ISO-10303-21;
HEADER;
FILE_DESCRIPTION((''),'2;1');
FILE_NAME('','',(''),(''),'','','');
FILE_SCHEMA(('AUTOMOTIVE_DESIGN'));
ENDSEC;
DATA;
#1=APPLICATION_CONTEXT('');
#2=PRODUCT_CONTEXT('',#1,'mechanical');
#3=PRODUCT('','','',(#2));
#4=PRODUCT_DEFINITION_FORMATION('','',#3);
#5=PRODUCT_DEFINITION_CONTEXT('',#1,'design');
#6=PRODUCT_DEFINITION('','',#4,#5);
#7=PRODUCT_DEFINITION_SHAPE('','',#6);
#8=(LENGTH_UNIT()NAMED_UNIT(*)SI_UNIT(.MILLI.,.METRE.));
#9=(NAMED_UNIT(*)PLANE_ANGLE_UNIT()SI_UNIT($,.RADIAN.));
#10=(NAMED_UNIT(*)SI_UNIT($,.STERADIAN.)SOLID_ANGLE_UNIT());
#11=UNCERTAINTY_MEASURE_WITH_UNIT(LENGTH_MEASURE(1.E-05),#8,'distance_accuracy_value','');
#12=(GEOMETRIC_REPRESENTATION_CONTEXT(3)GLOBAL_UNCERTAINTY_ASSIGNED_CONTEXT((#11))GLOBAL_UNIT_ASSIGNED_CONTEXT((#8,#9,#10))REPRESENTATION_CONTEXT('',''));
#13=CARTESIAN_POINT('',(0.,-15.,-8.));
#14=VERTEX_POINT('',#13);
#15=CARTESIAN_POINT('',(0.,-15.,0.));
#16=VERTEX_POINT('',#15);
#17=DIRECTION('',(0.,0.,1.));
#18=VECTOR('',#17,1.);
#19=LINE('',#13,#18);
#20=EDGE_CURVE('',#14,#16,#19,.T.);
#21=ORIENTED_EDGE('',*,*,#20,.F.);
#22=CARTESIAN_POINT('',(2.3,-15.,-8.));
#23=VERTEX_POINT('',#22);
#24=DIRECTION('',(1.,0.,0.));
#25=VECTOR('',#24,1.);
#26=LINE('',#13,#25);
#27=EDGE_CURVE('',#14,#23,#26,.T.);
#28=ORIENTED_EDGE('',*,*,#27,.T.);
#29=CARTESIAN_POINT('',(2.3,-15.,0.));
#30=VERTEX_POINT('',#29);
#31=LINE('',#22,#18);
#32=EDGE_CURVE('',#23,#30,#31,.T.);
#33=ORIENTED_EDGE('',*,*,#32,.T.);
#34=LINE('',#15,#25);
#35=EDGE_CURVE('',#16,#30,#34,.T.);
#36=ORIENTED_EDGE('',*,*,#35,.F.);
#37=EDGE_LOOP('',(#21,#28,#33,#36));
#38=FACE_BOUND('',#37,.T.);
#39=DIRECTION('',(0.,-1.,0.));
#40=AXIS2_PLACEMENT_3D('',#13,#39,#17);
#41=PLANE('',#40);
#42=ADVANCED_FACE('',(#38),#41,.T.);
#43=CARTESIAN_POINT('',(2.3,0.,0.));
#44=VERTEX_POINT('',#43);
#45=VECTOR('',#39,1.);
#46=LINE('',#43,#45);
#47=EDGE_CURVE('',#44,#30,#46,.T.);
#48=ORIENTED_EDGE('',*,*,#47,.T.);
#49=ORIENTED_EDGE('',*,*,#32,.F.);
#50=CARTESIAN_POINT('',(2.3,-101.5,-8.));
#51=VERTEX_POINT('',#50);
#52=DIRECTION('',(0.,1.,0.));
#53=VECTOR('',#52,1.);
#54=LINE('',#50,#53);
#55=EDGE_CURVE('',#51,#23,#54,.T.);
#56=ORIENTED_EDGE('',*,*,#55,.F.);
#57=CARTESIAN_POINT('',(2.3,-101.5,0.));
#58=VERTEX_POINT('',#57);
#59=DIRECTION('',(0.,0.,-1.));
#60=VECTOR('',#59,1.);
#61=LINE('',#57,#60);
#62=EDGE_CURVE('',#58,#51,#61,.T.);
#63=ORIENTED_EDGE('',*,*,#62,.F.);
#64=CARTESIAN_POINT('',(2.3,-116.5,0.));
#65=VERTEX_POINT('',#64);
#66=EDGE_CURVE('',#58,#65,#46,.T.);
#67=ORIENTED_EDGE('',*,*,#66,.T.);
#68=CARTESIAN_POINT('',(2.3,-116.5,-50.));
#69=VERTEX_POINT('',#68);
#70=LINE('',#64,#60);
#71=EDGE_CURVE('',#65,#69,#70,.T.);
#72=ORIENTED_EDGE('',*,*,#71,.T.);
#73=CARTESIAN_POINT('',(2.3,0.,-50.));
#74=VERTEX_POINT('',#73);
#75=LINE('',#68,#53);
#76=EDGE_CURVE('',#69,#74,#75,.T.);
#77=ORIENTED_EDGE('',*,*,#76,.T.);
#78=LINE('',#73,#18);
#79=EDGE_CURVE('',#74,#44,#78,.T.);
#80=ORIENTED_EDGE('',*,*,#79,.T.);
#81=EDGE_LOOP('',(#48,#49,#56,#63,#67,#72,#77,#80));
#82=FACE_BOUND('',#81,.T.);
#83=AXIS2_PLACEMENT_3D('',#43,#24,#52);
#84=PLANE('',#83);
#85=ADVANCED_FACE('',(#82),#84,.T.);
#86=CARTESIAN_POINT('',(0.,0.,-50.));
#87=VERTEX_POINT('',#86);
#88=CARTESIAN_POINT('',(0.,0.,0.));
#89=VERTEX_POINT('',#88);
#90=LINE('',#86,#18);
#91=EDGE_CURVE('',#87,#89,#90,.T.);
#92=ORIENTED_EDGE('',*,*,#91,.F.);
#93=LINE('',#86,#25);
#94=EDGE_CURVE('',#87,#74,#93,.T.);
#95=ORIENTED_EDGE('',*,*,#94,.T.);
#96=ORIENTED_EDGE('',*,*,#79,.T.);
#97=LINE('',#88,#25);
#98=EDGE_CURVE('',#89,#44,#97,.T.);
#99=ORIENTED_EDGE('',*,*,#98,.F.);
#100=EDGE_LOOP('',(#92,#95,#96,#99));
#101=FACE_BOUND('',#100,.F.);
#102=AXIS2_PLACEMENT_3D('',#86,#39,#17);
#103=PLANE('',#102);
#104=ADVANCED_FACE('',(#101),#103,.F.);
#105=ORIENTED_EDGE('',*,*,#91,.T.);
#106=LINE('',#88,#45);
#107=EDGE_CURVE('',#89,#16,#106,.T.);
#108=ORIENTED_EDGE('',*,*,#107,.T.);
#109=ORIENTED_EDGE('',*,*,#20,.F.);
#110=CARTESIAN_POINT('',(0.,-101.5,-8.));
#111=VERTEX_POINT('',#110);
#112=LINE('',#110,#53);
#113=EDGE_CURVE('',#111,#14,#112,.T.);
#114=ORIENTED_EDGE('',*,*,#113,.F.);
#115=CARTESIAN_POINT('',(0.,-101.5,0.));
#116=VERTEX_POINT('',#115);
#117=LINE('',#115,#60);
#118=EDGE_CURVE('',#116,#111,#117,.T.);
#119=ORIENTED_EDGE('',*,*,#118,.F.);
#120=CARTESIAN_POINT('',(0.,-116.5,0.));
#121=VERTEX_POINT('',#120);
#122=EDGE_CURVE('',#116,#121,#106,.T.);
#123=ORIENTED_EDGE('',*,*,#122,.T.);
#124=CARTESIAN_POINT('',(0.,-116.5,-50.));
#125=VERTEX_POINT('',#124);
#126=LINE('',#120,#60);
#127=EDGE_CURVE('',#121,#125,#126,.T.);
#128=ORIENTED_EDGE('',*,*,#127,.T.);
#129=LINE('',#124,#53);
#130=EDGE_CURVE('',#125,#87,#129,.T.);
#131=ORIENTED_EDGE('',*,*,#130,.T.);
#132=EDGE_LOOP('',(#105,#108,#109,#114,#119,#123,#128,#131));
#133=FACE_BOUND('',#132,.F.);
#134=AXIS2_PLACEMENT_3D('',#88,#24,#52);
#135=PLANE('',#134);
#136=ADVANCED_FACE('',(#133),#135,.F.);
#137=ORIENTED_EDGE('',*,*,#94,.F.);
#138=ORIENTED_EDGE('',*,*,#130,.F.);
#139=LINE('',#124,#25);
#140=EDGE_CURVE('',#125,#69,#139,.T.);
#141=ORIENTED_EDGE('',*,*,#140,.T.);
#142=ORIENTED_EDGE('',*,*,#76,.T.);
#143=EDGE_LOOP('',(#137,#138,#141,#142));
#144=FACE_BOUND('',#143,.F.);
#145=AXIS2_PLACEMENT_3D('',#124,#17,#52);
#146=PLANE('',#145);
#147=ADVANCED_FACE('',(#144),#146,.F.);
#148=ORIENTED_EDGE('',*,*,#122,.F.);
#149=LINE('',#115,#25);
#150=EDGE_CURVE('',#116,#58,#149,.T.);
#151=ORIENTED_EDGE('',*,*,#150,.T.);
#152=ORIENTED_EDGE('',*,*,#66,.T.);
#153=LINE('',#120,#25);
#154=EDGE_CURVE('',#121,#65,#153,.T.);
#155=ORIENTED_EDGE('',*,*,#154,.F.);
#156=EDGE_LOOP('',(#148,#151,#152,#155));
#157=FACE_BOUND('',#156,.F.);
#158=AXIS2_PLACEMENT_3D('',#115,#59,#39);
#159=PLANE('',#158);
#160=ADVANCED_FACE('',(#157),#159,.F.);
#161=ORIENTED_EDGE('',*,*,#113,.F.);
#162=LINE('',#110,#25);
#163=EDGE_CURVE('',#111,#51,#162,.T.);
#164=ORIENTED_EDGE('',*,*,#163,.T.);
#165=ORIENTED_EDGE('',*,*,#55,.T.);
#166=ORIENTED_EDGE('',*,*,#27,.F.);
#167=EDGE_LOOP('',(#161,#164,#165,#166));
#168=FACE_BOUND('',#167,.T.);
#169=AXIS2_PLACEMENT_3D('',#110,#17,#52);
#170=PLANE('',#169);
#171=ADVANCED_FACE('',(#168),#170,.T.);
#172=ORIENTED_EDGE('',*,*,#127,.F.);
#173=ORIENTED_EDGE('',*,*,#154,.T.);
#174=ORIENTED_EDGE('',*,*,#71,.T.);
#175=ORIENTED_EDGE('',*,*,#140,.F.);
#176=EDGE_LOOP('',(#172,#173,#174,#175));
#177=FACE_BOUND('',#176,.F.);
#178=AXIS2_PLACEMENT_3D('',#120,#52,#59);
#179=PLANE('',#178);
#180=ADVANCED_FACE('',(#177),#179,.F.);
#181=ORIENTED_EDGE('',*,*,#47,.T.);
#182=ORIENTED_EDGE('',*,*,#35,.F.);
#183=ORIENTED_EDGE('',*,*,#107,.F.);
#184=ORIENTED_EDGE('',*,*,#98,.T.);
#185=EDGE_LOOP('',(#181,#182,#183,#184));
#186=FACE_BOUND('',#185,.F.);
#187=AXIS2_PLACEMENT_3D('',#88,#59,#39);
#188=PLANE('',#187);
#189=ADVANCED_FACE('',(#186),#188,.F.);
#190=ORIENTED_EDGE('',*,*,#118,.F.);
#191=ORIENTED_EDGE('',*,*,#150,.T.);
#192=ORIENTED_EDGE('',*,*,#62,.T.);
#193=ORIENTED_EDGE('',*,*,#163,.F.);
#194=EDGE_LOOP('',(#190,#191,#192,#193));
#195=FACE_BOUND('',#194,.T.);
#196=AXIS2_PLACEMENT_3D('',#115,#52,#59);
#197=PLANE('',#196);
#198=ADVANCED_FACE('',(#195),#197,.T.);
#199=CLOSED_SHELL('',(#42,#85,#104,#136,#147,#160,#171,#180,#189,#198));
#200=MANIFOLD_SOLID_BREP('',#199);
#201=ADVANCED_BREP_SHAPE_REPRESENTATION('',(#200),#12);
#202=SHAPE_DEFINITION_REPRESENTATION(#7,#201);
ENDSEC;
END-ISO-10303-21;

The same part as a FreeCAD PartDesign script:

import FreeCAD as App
import Part
import Sketcher
from FreeCAD import Vector


def add_polygon(sketch, points):
    """Adds a closed chain of lines whose ends are joined by coincident constraints."""
    first, n = sketch.GeometryCount, len(points)
    for a, b in zip(points, points[1:] + points[:1]):
        sketch.addGeometry(Part.LineSegment(App.Vector(*a, 0), App.Vector(*b, 0)), False)
    for i in range(n):
        sketch.addConstraint(Sketcher.Constraint("Coincident", first + i, 2, first + (i + 1) % n, 1))

doc = App.newDocument("Part")
params = doc.addObject("Spreadsheet::Sheet", "Params")
for row, (alias, value) in enumerate([
    ("sketch1_width", "15 mm"),
    ("sketch1_height", "50 mm"),
    ("sketch1_height2", "8 mm"),
    ("sketch1_width2", "116.5 mm"),
    ("pad1_length", "2.3 mm"),
], start=1):
    params.set(f"A{row}", alias)
    params.set(f"B{row}", "=" + value)
    params.setAlias(f"B{row}", alias)

body = doc.addObject("PartDesign::Body", "Body")

sketch1 = body.newObject("Sketcher::SketchObject", "Sketch")
sketch1.AttachmentSupport = (doc.getObject("YZ_Plane"), [""])
sketch1.MapMode = "FlatFace"
add_polygon(sketch1, [(0, -50), (0, 0), (-15, 0), (-15, -8), (-102, -8), (-102, 0), (-116, 0), (-116, -50)])
sketch1.addConstraint(Sketcher.Constraint("Vertical", 0))
sketch1.addConstraint(Sketcher.Constraint("Horizontal", 1))
sketch1.addConstraint(Sketcher.Constraint("Vertical", 2))
sketch1.addConstraint(Sketcher.Constraint("Horizontal", 3))
sketch1.addConstraint(Sketcher.Constraint("Vertical", 4))
sketch1.addConstraint(Sketcher.Constraint("Horizontal", 5))
sketch1.addConstraint(Sketcher.Constraint("Vertical", 6))
sketch1.addConstraint(Sketcher.Constraint("Horizontal", 7))
sketch1.addConstraint(Sketcher.Constraint("Coincident", 0, 2, -1, 1))
sketch1.addConstraint(Sketcher.Constraint("PointOnObject", 4, 2, -1))
sketch1.addConstraint(Sketcher.Constraint("Equal", 1, 5))
sketch1.addConstraint(Sketcher.Constraint("DistanceX", 1, 2, 1, 1, 15.0))
sketch1.addConstraint(Sketcher.Constraint("DistanceY", 0, 1, 0, 2, 50.0))
sketch1.addConstraint(Sketcher.Constraint("DistanceY", 2, 2, 2, 1, 8.0))
sketch1.addConstraint(Sketcher.Constraint("DistanceX", 7, 1, 7, 2, 116.5))
sketch1.setExpression("Constraints[19]", "Params.sketch1_width")
sketch1.setExpression("Constraints[20]", "Params.sketch1_height")
sketch1.setExpression("Constraints[21]", "Params.sketch1_height2")
sketch1.setExpression("Constraints[22]", "Params.sketch1_width2")
pad1 = body.newObject("PartDesign::Pad", "Pad")
pad1.Profile = sketch1
pad1.setExpression("Length", "Params.pad1_length")

doc.recompute()
